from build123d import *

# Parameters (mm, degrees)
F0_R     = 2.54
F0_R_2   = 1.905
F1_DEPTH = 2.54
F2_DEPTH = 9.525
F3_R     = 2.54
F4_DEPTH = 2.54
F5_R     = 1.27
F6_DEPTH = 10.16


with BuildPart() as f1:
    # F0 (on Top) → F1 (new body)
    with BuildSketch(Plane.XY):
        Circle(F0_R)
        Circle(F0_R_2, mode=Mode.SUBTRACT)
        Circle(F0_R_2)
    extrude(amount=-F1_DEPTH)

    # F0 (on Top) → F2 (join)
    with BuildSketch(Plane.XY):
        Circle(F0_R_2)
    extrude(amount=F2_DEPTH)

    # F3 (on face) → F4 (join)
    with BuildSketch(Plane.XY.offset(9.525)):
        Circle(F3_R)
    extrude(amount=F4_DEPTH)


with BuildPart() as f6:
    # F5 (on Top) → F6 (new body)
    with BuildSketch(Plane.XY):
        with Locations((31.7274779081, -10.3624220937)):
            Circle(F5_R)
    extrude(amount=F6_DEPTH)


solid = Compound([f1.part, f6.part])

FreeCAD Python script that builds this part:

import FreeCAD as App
import Part
import Sketcher
Q = App.Units.Quantity

doc = App.newDocument("Part")
body = doc.addObject("PartDesign::Body", "Body")

sketch1 = doc.addObject("Sketcher::SketchObject", "Sketch")
body.addObject(sketch1)
sketch1.AttachmentSupport = (doc.XY_Plane, [""])
sketch1.MapMode = "FlatFace"
sketch1.addGeometry(Part.Circle(App.Vector(0, 0, 0), App.Vector(0, 0, 1), 2.5), False)
sketch1.addConstraint(Sketcher.Constraint("Coincident", 0, 3, -1, 1))
sketch1.addConstraint(Sketcher.Constraint("Diameter", 0, Q("0.2 in")))
pad1 = doc.addObject("PartDesign::Pad", "Pad")
body.addObject(pad1)
pad1.Profile = sketch1
pad1.Length = Q("0.1 in")
pad1.Reversed = True

sketch2 = doc.addObject("Sketcher::SketchObject", "Sketch001")
body.addObject(sketch2)
sketch2.AttachmentSupport = (doc.XY_Plane, [""])
sketch2.MapMode = "FlatFace"
sketch2.addGeometry(Part.Circle(App.Vector(0, 0, 0), App.Vector(0, 0, 1), 1.9), False)
sketch2.addConstraint(Sketcher.Constraint("Coincident", 0, 3, -1, 1))
sketch2.addConstraint(Sketcher.Constraint("Diameter", 0, Q("0.15 in")))
pad2 = doc.addObject("PartDesign::Pad", "Pad001")
body.addObject(pad2)
pad2.Profile = sketch2
pad2.Length = Q("0.375 in")

sketch3 = doc.addObject("Sketcher::SketchObject", "Sketch002")
body.addObject(sketch3)
sketch3.AttachmentSupport = (doc.XY_Plane, [""])
sketch3.MapMode = "FlatFace"
sketch3.AttachmentOffset = App.Placement(App.Vector(0, 0, 0.375 * 25.4), App.Rotation())
sketch3.addGeometry(Part.Circle(App.Vector(0, 0, 0), App.Vector(0, 0, 1), 2.5), False)
sketch3.addConstraint(Sketcher.Constraint("Coincident", 0, 3, -1, 1))
sketch3.addConstraint(Sketcher.Constraint("Diameter", 0, Q("0.2 in")))
pad3 = doc.addObject("PartDesign::Pad", "Pad002")
body.addObject(pad3)
pad3.Profile = sketch3
pad3.Length = Q("0.1 in")
body2 = doc.addObject("PartDesign::Body", "Body001")

sketch4 = doc.addObject("Sketcher::SketchObject", "Sketch003")
body2.addObject(sketch4)
sketch4.AttachmentSupport = (doc.getObject("XY_Plane001"), [""])
sketch4.MapMode = "FlatFace"
sketch4.addGeometry(Part.Circle(App.Vector(31.7, -10.4, 0), App.Vector(0, 0, 1), 1.3), False)
sketch4.addConstraint(Sketcher.Constraint("Diameter", 0, Q("0.1 in")))
sketch4.addConstraint(Sketcher.Constraint("DistanceX", -1, 1, 0, 3, 31.727478))
sketch4.addConstraint(Sketcher.Constraint("DistanceY", 0, 3, -1, 1, 10.362422))
pad4 = doc.addObject("PartDesign::Pad", "Pad003")
body2.addObject(pad4)
pad4.Profile = sketch4
pad4.Length = Q("0.4 in")

doc.recompute()
